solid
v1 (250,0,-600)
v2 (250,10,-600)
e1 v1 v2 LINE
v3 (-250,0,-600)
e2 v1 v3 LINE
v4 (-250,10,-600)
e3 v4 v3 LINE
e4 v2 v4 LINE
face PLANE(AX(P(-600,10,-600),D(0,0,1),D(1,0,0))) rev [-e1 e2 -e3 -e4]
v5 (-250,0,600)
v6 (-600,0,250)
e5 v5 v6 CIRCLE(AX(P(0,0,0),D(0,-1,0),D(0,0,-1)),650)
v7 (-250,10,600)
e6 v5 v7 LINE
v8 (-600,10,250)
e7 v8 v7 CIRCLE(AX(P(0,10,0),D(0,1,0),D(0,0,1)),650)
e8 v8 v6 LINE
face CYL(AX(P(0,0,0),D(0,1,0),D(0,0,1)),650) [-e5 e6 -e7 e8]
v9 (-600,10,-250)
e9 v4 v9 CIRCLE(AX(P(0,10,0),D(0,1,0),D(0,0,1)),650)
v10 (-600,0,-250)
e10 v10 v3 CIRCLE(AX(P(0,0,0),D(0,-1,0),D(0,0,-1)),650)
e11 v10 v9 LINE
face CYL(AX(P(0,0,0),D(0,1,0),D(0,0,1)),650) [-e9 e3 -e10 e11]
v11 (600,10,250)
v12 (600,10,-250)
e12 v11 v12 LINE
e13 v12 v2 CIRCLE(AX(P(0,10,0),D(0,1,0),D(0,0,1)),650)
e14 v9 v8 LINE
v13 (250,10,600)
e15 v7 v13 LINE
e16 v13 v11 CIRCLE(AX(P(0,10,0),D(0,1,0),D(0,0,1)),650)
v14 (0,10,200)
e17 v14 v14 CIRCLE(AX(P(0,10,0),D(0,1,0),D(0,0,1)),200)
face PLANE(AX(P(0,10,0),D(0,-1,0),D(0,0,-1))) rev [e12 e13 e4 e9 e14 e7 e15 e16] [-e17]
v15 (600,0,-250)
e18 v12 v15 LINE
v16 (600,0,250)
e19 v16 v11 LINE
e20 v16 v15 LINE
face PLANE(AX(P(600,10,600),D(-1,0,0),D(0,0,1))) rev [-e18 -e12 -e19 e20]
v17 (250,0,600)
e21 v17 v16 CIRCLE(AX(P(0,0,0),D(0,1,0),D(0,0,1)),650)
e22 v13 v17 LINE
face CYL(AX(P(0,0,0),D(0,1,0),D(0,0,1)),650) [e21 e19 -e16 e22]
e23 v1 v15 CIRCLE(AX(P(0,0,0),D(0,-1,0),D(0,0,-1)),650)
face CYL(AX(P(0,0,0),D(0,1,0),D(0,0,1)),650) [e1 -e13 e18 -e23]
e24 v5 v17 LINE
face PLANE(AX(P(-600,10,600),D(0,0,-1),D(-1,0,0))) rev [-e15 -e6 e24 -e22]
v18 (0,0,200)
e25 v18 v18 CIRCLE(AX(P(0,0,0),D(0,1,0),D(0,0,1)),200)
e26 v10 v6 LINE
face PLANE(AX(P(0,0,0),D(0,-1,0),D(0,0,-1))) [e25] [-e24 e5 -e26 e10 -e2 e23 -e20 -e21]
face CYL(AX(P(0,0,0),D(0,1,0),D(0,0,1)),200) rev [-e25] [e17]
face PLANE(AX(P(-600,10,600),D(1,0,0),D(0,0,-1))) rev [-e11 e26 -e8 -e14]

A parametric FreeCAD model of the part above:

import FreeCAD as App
import Part
import Sketcher

V = App.Vector


def add_polygon(sketch, points):
    """Adds a closed chain of lines whose ends are joined by coincident constraints."""
    first, n = sketch.GeometryCount, len(points)
    for a, b in zip(points, points[1:] + points[:1]):
        sketch.addGeometry(Part.LineSegment(App.Vector(*a, 0), App.Vector(*b, 0)), False)
    for i in range(n):
        sketch.addConstraint(Sketcher.Constraint("Coincident", first + i, 2, first + (i + 1) % n, 1))

doc = App.newDocument("Part")
body = doc.addObject("PartDesign::Body", "Body")

sketch1 = body.newObject("Sketcher::SketchObject", "Sketch")
sketch1.AttachmentSupport = (doc.getObject("XZ_Plane"), [""])
sketch1.MapMode = "FlatFace"
add_polygon(sketch1, [(-600, -600), (-600, 600), (600, 600), (600, -600)])
sketch1.addConstraint(Sketcher.Constraint("Vertical", 0))
sketch1.addConstraint(Sketcher.Constraint("Horizontal", 1))
sketch1.addConstraint(Sketcher.Constraint("Vertical", 2))
sketch1.addConstraint(Sketcher.Constraint("Horizontal", 3))
sketch1.addConstraint(Sketcher.Constraint("Symmetric", 0, 2, 2, 2, -1, 1))
sketch1.addConstraint(Sketcher.Constraint("Equal", 3, 0))
sketch1.addConstraint(Sketcher.Constraint("DistanceX", 1, 1, 1, 2, 1200.0))
pad1 = body.newObject("PartDesign::Pad", "Pad")
pad1.Profile = sketch1
pad1.Length = 10
pad1.Reversed = True

sketch2 = body.newObject("Sketcher::SketchObject", "Sketch001")
sketch2.AttachmentSupport = (doc.getObject("XZ_Plane"), [""])
sketch2.MapMode = "FlatFace"
sketch2.AttachmentOffset = App.Placement(V(0, 0, -10), App.Rotation())
sketch2.addGeometry(Part.Circle(V(0, 0, 0), V(0, 0, 1), 200), False)
sketch2.addConstraint(Sketcher.Constraint("Coincident", 0, 3, -1, 1))
sketch2.addConstraint(Sketcher.Constraint("Diameter", 0, 400.0))
pocket1 = body.newObject("PartDesign::Pocket", "Pocket")
pocket1.Profile = sketch2
pocket1.Type = "ThroughAll"
pocket1.Reversed = True

sketch3 = body.newObject("Sketcher::SketchObject", "Sketch002")
sketch3.AttachmentSupport = (doc.getObject("XZ_Plane"), [""])
sketch3.MapMode = "FlatFace"
sketch3.AttachmentOffset = App.Placement(V(0, 0, -10), App.Rotation())
sketch3.addGeometry(Part.Circle(V(0, 0, 0), V(0, 0, 1), 1054), False)
sketch3.addGeometry(Part.Circle(V(0, 0, 0), V(0, 0, 1), 650), False)
sketch3.addConstraint(Sketcher.Constraint("Coincident", 0, 3, -1, 1))
sketch3.addConstraint(Sketcher.Constraint("Coincident", 1, 3, -1, 1))
sketch3.addConstraint(Sketcher.Constraint("Diameter", 1, 1300.0))
sketch3.addConstraint(Sketcher.Constraint("Diameter", 0, 2107.246244))
pocket2 = body.newObject("PartDesign::Pocket", "Pocket001")
pocket2.Profile = sketch3
pocket2.Type = "ThroughAll"
pocket2.Reversed = True

doc.recompute()
